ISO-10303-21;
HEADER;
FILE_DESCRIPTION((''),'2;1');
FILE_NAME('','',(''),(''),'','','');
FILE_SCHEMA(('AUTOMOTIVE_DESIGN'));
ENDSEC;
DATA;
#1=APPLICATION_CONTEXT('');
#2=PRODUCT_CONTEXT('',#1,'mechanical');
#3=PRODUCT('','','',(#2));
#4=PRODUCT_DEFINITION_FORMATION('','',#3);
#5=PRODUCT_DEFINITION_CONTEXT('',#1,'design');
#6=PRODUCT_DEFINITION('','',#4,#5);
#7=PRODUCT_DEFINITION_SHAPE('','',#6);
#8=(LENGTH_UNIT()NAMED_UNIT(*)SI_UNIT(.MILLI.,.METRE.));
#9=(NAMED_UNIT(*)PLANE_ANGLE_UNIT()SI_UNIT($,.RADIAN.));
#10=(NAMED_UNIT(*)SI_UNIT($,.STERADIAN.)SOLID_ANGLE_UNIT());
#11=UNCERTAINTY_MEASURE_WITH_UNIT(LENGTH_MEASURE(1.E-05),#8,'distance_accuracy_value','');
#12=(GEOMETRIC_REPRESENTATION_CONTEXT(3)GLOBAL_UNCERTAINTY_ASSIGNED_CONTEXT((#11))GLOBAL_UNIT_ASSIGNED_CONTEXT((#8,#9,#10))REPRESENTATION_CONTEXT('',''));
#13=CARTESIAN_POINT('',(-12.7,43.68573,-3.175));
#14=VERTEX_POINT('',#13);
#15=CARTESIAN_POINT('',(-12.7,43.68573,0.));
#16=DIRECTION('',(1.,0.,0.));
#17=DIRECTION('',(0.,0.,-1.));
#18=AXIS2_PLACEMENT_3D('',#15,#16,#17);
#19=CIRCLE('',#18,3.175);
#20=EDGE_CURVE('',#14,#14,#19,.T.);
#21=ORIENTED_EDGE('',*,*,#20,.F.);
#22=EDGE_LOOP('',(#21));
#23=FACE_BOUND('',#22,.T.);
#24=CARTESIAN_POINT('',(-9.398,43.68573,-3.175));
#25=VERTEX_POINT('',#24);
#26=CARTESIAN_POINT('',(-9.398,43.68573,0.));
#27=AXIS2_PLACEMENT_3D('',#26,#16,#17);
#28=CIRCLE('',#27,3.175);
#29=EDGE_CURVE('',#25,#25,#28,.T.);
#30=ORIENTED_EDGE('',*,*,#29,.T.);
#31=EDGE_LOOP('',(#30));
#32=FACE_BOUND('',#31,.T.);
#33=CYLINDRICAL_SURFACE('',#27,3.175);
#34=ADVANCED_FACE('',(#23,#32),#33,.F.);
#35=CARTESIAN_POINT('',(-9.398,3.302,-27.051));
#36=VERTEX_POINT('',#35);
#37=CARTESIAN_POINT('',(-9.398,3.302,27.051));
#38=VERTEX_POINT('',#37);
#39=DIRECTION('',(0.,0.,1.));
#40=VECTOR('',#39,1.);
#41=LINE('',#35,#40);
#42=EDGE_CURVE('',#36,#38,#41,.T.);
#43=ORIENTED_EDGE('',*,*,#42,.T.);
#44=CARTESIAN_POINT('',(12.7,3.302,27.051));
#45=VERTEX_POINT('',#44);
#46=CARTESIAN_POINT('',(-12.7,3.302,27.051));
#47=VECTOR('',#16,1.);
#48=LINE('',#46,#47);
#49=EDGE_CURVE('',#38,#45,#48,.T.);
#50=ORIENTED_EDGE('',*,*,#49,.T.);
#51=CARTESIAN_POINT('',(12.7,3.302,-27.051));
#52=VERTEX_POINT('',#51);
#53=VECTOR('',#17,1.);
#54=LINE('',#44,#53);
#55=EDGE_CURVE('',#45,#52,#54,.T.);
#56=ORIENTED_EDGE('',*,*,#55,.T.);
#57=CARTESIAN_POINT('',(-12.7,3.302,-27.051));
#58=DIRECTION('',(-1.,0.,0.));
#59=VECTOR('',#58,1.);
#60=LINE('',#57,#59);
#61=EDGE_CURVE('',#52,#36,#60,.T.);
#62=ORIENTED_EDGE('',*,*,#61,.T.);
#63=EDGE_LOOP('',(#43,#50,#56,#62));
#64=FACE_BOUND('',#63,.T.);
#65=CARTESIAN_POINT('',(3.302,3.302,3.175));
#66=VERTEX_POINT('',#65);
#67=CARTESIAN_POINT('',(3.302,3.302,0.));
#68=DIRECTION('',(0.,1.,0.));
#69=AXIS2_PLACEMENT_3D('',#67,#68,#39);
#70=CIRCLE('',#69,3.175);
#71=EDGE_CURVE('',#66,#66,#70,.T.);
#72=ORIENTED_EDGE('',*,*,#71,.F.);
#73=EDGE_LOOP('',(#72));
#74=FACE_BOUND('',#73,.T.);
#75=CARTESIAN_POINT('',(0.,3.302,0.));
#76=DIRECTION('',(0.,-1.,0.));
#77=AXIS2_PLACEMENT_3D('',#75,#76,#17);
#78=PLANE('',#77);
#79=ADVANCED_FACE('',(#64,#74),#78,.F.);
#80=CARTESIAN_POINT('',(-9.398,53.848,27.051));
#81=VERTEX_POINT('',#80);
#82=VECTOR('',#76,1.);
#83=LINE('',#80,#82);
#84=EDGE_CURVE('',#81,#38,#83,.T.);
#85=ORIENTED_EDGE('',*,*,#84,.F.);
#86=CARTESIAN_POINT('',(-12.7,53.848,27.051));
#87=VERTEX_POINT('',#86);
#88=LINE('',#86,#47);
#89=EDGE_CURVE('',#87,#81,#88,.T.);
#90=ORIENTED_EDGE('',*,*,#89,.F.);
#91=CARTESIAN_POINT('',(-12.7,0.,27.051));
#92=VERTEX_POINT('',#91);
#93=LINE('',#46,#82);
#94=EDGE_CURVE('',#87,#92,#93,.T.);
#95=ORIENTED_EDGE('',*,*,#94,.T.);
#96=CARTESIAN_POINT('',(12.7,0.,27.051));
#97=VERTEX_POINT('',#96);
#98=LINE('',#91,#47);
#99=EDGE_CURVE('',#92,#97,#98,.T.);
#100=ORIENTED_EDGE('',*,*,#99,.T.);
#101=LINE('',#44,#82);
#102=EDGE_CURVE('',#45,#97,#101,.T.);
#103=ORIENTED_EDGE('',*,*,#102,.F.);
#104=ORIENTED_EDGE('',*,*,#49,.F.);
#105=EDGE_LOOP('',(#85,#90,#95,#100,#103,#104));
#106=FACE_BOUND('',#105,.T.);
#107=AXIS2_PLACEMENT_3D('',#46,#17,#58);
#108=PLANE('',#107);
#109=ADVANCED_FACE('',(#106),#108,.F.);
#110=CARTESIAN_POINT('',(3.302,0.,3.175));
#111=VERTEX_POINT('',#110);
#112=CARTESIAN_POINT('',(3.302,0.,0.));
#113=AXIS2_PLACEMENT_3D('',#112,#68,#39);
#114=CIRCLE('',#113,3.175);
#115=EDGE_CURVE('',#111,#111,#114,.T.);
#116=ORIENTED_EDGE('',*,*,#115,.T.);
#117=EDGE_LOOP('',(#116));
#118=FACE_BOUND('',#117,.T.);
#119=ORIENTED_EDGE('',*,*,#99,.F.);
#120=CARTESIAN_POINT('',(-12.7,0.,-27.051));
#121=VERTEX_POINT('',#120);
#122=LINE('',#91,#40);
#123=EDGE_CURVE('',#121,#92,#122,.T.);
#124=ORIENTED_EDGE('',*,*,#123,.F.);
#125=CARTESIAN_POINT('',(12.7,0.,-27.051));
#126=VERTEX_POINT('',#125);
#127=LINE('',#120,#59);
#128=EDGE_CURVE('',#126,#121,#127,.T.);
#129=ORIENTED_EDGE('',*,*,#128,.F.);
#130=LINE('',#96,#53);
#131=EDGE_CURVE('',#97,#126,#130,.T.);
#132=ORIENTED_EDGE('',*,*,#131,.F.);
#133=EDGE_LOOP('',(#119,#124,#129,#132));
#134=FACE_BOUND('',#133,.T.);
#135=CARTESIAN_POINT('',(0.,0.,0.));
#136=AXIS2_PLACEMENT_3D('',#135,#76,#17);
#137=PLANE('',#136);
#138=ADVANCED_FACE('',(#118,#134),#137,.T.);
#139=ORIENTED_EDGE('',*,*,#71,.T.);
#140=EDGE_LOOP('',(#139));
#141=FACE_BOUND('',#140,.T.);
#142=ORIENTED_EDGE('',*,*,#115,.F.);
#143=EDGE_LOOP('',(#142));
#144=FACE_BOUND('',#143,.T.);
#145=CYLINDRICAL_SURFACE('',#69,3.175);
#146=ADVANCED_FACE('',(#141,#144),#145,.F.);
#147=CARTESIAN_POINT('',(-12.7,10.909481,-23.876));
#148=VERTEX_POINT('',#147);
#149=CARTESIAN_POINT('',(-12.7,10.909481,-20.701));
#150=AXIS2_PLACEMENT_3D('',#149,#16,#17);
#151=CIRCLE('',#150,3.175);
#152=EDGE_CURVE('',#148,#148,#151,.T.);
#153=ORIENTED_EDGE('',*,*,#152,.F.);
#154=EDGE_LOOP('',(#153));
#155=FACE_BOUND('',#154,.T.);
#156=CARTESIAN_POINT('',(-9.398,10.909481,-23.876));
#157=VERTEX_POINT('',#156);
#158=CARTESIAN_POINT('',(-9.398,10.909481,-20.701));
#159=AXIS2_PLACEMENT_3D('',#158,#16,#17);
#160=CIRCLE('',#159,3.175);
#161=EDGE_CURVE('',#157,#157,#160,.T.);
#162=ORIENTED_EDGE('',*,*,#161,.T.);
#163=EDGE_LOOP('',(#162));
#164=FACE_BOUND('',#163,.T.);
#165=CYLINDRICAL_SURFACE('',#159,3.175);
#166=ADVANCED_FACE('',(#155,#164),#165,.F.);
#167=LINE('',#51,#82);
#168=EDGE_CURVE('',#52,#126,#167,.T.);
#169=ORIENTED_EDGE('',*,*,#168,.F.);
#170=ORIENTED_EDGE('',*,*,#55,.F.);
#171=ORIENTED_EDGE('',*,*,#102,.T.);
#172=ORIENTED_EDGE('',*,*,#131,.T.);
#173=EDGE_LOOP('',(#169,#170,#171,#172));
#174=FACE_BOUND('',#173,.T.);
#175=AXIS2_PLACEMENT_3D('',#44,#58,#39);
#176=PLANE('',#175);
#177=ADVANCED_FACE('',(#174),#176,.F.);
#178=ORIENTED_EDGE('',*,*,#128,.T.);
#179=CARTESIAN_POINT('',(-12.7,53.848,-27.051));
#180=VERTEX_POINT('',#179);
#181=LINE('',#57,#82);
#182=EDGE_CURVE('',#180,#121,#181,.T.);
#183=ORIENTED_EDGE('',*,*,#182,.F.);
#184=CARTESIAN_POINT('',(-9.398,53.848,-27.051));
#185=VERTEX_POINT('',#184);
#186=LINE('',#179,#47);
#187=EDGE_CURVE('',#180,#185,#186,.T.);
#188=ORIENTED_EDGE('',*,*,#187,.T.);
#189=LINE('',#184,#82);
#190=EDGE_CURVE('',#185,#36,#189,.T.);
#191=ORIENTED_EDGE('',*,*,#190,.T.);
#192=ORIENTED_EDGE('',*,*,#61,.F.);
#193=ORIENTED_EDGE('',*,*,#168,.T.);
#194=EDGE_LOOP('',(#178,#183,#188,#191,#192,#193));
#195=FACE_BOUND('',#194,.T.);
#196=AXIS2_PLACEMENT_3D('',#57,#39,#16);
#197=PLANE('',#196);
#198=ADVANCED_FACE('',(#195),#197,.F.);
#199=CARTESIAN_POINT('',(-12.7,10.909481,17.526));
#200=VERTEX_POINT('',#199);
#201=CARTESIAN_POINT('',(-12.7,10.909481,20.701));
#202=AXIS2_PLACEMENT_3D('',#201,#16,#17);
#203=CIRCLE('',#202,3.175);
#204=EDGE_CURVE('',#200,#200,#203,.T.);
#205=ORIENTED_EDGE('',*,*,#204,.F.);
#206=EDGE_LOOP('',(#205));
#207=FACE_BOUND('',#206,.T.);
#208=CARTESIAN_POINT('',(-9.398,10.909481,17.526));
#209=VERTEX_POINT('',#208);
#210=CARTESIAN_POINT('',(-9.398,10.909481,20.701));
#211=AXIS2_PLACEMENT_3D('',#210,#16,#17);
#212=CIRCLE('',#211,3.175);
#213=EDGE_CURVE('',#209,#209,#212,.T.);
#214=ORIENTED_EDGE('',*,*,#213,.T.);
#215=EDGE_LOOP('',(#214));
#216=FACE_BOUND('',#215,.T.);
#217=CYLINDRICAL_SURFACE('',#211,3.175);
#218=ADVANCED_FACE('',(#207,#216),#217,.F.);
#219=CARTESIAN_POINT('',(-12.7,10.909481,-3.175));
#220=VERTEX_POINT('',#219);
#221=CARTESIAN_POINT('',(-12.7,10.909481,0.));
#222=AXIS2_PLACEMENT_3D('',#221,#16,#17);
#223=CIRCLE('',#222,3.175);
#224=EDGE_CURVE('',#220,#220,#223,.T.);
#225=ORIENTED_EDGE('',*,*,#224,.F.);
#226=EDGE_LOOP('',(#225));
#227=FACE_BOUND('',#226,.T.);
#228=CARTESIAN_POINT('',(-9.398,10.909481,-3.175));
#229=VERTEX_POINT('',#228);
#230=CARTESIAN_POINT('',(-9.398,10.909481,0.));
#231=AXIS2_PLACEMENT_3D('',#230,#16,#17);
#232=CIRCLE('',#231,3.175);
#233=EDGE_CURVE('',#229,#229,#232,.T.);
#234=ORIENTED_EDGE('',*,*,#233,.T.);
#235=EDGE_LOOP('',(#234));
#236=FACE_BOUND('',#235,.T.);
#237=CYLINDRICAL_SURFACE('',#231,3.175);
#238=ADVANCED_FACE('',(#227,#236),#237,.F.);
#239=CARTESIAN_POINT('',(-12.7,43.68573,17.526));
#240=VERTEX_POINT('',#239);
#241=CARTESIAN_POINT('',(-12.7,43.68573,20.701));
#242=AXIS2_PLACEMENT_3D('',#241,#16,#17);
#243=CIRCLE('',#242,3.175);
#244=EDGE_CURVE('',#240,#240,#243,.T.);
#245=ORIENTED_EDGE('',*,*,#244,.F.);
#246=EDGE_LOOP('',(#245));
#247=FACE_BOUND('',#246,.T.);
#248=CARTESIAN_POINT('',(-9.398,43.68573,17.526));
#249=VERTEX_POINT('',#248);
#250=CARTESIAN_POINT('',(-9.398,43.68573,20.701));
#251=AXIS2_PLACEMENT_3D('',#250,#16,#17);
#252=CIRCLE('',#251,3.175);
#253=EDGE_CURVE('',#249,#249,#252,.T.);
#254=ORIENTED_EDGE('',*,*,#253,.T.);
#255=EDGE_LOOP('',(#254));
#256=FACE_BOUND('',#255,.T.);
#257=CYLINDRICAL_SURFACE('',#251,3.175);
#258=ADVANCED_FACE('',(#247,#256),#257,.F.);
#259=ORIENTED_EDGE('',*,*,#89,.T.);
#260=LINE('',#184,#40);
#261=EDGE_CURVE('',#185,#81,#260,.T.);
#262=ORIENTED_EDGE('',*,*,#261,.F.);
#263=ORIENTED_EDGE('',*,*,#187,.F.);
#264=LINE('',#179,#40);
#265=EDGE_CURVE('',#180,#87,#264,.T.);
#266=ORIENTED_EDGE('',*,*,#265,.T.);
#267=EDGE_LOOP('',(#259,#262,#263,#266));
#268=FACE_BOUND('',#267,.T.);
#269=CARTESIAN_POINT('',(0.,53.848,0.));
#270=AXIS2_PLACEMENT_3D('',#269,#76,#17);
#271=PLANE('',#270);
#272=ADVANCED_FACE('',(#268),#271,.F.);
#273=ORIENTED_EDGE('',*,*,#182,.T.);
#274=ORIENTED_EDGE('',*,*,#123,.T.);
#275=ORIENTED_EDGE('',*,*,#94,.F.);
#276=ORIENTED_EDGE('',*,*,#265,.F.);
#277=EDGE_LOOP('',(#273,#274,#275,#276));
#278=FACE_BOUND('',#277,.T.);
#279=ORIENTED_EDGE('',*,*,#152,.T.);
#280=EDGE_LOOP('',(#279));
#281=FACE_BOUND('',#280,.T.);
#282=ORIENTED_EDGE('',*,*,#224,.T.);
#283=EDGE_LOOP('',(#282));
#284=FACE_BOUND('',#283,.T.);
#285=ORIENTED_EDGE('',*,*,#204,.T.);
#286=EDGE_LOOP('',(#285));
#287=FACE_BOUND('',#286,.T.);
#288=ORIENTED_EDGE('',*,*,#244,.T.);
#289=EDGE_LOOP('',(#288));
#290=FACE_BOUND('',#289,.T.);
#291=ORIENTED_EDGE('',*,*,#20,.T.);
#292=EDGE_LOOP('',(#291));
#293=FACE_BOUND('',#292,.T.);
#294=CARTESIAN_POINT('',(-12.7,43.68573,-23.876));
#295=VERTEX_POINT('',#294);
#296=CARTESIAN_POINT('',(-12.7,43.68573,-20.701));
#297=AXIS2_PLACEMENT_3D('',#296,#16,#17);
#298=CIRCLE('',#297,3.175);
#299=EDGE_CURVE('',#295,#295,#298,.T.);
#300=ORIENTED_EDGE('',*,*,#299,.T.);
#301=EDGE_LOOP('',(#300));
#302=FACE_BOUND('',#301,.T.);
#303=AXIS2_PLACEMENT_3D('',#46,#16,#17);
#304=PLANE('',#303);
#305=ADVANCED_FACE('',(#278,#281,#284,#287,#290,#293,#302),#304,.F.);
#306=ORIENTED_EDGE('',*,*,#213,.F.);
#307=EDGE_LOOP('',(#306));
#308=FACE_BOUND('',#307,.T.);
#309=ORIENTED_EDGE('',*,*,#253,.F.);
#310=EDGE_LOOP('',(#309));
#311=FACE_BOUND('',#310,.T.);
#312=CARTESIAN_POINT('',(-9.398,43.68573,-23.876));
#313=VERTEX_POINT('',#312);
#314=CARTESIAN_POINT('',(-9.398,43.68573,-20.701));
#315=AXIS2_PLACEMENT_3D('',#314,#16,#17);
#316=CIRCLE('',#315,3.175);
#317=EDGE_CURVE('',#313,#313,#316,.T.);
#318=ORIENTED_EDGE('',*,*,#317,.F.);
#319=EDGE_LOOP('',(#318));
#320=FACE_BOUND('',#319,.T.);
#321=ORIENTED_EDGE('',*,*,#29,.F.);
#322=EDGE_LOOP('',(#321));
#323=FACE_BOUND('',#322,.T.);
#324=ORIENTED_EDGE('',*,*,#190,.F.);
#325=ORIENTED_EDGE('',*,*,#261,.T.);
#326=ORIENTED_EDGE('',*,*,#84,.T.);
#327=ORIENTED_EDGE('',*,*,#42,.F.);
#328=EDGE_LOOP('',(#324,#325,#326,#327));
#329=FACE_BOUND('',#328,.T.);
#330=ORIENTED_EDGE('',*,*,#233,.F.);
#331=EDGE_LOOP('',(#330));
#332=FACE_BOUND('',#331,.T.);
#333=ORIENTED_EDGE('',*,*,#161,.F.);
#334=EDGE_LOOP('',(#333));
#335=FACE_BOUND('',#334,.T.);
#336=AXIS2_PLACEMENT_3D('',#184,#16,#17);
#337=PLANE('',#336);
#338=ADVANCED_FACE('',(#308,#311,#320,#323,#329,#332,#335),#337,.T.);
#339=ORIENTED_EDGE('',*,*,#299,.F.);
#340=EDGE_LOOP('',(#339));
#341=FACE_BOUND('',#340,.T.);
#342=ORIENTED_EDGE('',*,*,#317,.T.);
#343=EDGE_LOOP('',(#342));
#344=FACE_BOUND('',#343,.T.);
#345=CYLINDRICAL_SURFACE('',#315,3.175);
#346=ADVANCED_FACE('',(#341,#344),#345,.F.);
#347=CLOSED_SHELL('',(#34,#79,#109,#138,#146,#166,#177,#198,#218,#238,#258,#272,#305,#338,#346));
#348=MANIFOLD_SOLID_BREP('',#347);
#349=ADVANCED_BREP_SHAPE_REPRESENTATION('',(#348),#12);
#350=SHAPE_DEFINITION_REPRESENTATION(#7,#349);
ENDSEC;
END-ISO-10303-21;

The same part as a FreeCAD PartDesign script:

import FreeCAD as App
import Part
import Sketcher

V = App.Vector
Q = App.Units.Quantity

doc = App.newDocument("Part")
body = doc.addObject("PartDesign::Body", "Body")

sketch1 = body.newObject("Sketcher::SketchObject", "Sketch")
sketch1.AttachmentSupport = (doc.getObject("XZ_Plane"), [""])
sketch1.MapMode = "FlatFace"
sketch1.addGeometry([
    Part.LineSegment(V(-12.7, -27.051, 0), V(-12.7, 27.051, 0)),
    Part.LineSegment(V(-12.7, 27.051, 0), V(12.7, 27.051, 0)),
    Part.LineSegment(V(12.7, 27.051, 0), V(12.7, -27.051, 0)),
    Part.LineSegment(V(12.7, -27.051, 0), V(-12.7, -27.051, 0)),
], False)
sketch1.addConstraint([
    Sketcher.Constraint("Coincident", 0, 2, 1, 1),
    Sketcher.Constraint("Coincident", 1, 2, 2, 1),
    Sketcher.Constraint("Coincident", 2, 2, 3, 1),
    Sketcher.Constraint("Coincident", 3, 2, 0, 1),
    Sketcher.Constraint("Vertical", 0),
    Sketcher.Constraint("Horizontal", 1),
    Sketcher.Constraint("Vertical", 2),
    Sketcher.Constraint("Horizontal", 3),
    Sketcher.Constraint("Symmetric", 0, 2, 2, 2, -1, 1),
    Sketcher.Constraint("DistanceX", 1, 1, 1, 2, Q("1 in")),
    Sketcher.Constraint("DistanceY", 0, 1, 0, 2, Q("2.13 in")),
])
pad1 = body.newObject("PartDesign::Pad", "Pad")
pad1.Profile = sketch1
pad1.Length = Q("0.13 in")
pad1.Reversed = True

sketch2 = body.newObject("Sketcher::SketchObject", "Sketch001")
sketch2.AttachmentSupport = (doc.getObject("XZ_Plane"), [""])
sketch2.MapMode = "FlatFace"
sketch2.AttachmentOffset = App.Placement(V(0, 0, -0.13 * 25.4), App.Rotation())
sketch2.addGeometry([
    Part.LineSegment(V(-12.7, -27.051, 0), V(-12.7, 27.051, 0)),
    Part.LineSegment(V(-12.7, 27.051, 0), V(-9.398, 27.051, 0)),
    Part.LineSegment(V(-9.398, 27.051, 0), V(-9.398, -27.051, 0)),
    Part.LineSegment(V(-9.398, -27.051, 0), V(-12.7, -27.051, 0)),
], False)
sketch2.addConstraint([
    Sketcher.Constraint("Coincident", 0, 2, 1, 1),
    Sketcher.Constraint("Coincident", 1, 2, 2, 1),
    Sketcher.Constraint("Coincident", 2, 2, 3, 1),
    Sketcher.Constraint("Coincident", 3, 2, 0, 1),
    Sketcher.Constraint("Vertical", 0),
    Sketcher.Constraint("Horizontal", 1),
    Sketcher.Constraint("Vertical", 2),
    Sketcher.Constraint("Horizontal", 3),
    Sketcher.Constraint("DistanceX", 1, 1, 1, 2, Q("0.13 in")),
    Sketcher.Constraint("DistanceY", 0, 1, 0, 2, Q("2.13 in")),
    Sketcher.Constraint("DistanceX", 0, 2, -1, 1, Q("0.5 in")),
    Sketcher.Constraint("DistanceY", -1, 1, 0, 2, Q("1.065 in")),
])
pad2 = body.newObject("PartDesign::Pad", "Pad001")
pad2.Profile = sketch2
pad2.Length = Q("1.99 in")
pad2.Reversed = True

sketch3 = body.newObject("Sketcher::SketchObject", "Sketch002")
sketch3.AttachmentSupport = (doc.getObject("YZ_Plane"), [""])
sketch3.MapMode = "FlatFace"
sketch3.AttachmentOffset = App.Placement(V(0, 0, -0.37 * 25.4), App.Rotation())
sketch3.addGeometry([
    Part.Circle(V(43.68573, 20.701, 0), V(0, 0, 1), 3.175),
    Part.Circle(V(43.68573, 0, 0), V(0, 0, 1), 3.175),
    Part.Circle(V(43.68573, -20.701, 0), V(0, 0, 1), 3.175),
    Part.Circle(V(10.909481, -20.701, 0), V(0, 0, 1), 3.175),
    Part.Circle(V(10.909481, 0, 0), V(0, 0, 1), 3.175),
    Part.Circle(V(10.909481, 20.701, 0), V(0, 0, 1), 3.175),
], False)
sketch3.addConstraint([
    Sketcher.Constraint("Equal", 0, 1),
    Sketcher.Constraint("Equal", 1, 2),
    Sketcher.Constraint("Equal", 2, 3),
    Sketcher.Constraint("Equal", 3, 4),
    Sketcher.Constraint("Equal", 4, 5),
    Sketcher.Constraint("Symmetric", 0, 3, 2, 3, -1),
    Sketcher.Constraint("Symmetric", 3, 3, 5, 3, -1),
    Sketcher.Constraint("PointOnObject", 1, 3, -1),
    Sketcher.Constraint("PointOnObject", 4, 3, -1),
    Sketcher.Constraint("Horizontal", 2, 3, 3, 3),
    Sketcher.Constraint("Vertical", 0, 3, 1, 3),
    Sketcher.Constraint("Vertical", 3, 3, 4, 3),
    Sketcher.Constraint("Diameter", 0, Q("0.25 in")),
    Sketcher.Constraint("DistanceY", 2, 3, 0, 3, Q("1.63 in")),
    Sketcher.Constraint("DistanceX", -1, 1, 0, 3, Q("43.68573 mm")),
    Sketcher.Constraint("DistanceX", -1, 1, 3, 3, Q("10.909481 mm")),
])
doc.recompute()
hole = body.newObject("PartDesign::Hole", "Hole")
hole.Profile = sketch3
hole.ThreadType = "None"
hole.Diameter = Q("0.25 in")
hole.DepthType = "ThroughAll"

sketch4 = body.newObject("Sketcher::SketchObject", "Sketch003")
sketch4.AttachmentSupport = (doc.getObject("XZ_Plane"), [""])
sketch4.MapMode = "FlatFace"
sketch4.AttachmentOffset = App.Placement(V(0, 0, -0.13 * 25.4), App.Rotation())
sketch4.addGeometry(Part.Circle(V(3.302, 0, 0), V(0, 0, 1), 3.175), False)
sketch4.addConstraint([
    Sketcher.Constraint("PointOnObject", 0, 3, -1),
    Sketcher.Constraint("Diameter", 0, Q("0.25 in")),
    Sketcher.Constraint("DistanceX", -1, 1, 0, 3, Q("0.13 in")),
])
doc.recompute()
hole2 = body.newObject("PartDesign::Hole", "Hole001")
hole2.Profile = sketch4
hole2.ThreadType = "None"
hole2.Diameter = Q("0.25 in")
hole2.DepthType = "ThroughAll"
hole2.Reversed = True

doc.recompute()
